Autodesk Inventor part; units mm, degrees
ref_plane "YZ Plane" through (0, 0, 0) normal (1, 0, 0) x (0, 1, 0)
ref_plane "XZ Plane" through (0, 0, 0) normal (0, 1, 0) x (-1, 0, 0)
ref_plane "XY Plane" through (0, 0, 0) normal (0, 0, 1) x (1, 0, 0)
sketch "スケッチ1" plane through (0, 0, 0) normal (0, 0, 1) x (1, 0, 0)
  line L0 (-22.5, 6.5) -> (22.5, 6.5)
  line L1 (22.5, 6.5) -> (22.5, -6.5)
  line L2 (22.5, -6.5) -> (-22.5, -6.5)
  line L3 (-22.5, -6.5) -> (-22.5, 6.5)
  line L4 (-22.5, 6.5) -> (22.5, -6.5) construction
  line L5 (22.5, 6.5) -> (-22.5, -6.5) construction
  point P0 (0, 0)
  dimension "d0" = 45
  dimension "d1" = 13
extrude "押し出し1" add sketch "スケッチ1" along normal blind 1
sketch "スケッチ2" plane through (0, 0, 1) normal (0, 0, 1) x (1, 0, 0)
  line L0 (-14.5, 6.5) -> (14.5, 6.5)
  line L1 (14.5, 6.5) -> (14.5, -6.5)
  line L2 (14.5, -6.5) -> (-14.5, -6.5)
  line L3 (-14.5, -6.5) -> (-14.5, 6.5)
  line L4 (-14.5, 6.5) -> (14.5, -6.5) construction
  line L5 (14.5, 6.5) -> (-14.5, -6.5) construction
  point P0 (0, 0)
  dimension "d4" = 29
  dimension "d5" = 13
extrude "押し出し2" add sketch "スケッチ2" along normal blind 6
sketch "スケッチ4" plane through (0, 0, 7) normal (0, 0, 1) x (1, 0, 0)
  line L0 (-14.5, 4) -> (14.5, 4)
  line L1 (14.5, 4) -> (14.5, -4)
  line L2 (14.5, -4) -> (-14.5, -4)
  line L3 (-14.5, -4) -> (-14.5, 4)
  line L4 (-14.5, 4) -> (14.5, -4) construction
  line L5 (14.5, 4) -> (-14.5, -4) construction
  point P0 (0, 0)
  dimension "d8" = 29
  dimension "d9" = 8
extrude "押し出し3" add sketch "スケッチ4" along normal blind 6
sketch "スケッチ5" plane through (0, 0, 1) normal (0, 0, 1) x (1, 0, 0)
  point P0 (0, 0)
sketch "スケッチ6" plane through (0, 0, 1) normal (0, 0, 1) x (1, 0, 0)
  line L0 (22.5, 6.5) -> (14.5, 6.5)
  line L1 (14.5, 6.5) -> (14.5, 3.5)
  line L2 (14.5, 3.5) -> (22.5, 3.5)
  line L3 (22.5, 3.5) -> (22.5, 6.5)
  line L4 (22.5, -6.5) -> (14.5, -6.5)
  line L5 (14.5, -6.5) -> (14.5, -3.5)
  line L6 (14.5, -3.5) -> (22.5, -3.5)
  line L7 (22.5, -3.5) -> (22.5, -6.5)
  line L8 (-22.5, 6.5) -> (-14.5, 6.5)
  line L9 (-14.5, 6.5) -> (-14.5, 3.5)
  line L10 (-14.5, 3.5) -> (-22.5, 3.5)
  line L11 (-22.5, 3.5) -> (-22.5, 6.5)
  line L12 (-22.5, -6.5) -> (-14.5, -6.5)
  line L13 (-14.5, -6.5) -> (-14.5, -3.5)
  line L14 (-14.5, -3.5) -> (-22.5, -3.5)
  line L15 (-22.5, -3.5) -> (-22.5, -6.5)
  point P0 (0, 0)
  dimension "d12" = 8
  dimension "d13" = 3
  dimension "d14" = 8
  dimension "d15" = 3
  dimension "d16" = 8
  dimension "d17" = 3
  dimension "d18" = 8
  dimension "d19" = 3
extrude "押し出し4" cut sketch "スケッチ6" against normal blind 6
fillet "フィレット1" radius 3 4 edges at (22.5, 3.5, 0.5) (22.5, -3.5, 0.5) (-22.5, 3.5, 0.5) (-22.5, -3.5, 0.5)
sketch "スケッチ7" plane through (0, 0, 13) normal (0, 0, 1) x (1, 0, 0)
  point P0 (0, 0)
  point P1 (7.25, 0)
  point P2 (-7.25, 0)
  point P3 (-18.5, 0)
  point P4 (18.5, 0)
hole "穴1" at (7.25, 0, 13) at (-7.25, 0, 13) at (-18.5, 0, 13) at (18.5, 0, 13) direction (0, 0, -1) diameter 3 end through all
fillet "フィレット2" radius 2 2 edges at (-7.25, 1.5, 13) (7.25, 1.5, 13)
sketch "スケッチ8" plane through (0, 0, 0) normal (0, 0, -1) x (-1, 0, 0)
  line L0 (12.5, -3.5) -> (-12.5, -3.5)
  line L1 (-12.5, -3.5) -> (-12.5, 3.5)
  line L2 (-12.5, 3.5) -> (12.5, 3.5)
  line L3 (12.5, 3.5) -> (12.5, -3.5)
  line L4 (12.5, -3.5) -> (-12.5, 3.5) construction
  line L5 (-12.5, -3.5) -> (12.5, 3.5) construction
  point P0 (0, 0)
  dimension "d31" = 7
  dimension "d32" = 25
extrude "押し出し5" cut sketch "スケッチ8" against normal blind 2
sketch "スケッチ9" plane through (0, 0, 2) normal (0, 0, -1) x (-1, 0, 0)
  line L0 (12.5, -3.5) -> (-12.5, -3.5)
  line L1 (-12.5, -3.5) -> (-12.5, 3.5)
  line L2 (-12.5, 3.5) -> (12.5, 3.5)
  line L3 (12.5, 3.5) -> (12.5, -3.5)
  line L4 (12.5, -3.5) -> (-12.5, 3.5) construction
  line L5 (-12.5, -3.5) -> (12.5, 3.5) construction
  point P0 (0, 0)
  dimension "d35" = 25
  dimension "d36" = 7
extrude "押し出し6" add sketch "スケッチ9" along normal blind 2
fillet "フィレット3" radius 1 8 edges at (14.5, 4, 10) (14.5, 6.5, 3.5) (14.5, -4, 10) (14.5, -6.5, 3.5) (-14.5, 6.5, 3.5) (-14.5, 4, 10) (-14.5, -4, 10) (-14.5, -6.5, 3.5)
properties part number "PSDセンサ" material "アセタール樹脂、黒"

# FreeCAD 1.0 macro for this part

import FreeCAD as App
import Part
import Sketcher
from FreeCAD import Vector
Q = App.Units.Quantity


def edges_at(feature, points):
    """Names of the edges that pass closest to the given points."""
    edges = feature.Shape.Edges
    near = lambda p: min(range(len(edges)), key=lambda i: edges[i].distToShape(Part.Vertex(*p))[0])
    return sorted({f"Edge{near(p) + 1}" for p in points})


def add_polygon(sketch, points):
    """Adds a closed chain of lines whose ends are joined by coincident constraints."""
    first, n = sketch.GeometryCount, len(points)
    for a, b in zip(points, points[1:] + points[:1]):
        sketch.addGeometry(Part.LineSegment(App.Vector(*a, 0), App.Vector(*b, 0)), False)
    for i in range(n):
        sketch.addConstraint(Sketcher.Constraint("Coincident", first + i, 2, first + (i + 1) % n, 1))

doc = App.newDocument("Part")
params = doc.addObject("Spreadsheet::Sheet", "Params")
for row, (alias, value) in enumerate([
    ("sketch1_width", "45 mm"),
    ("sketch1_height", "13 mm"),
    ("pad1_length", "1 mm"),
    ("sketch2_width", "29 mm"),
    ("sketch2_height", "13 mm"),
    ("pad2_length", "6 mm"),
    ("sketch3_width", "29 mm"),
    ("sketch3_height", "8 mm"),
    ("pad3_length", "6 mm"),
    ("sketch4_width", "8 mm"),
    ("sketch4_height", "3 mm"),
    ("pocket1_length", "6 mm"),
    ("fillet_radius", "3 mm"),
    ("sketch5_diameter", "3 mm"),
    ("hole_diameter", "3 mm"),
    ("fillet2_radius", "2 mm"),
    ("sketch6_width", "25 mm"),
    ("sketch6_height", "7 mm"),
    ("pocket2_length", "2 mm"),
    ("sketch7_width", "25 mm"),
    ("sketch7_height", "7 mm"),
    ("pad4_length", "2 mm"),
    ("fillet3_radius", "1 mm"),
], start=1):
    params.set(f"A{row}", alias)
    params.set(f"B{row}", "=" + value)
    params.setAlias(f"B{row}", alias)

body = doc.addObject("PartDesign::Body", "Body")

# Sketch on XY plane
sketch1 = doc.addObject("Sketcher::SketchObject", "Sketch")
body.addObject(sketch1)
sketch1.AttachmentSupport = (doc.XY_Plane, [""])
sketch1.MapMode = "FlatFace"
add_polygon(sketch1, [(22, 6), (-22, 6), (-22, -6), (22, -6)])  # lines 0-3
sketch1.addConstraint([
    Sketcher.Constraint("Horizontal", 0),
    Sketcher.Constraint("Vertical", 1),
    Sketcher.Constraint("Horizontal", 2),
    Sketcher.Constraint("Vertical", 3),
    Sketcher.Constraint("Symmetric", 0, 2, 2, 2, -1, 1),
    Sketcher.Constraint("DistanceX", 0, 2, 0, 1, Q("45 mm")),
    Sketcher.Constraint("DistanceY", 1, 2, 1, 1, Q("13 mm")),
])
sketch1.setExpression("Constraints[9]", "Params.sketch1_width")
sketch1.setExpression("Constraints[10]", "Params.sketch1_height")
pad1 = doc.addObject("PartDesign::Pad", "Pad")
body.addObject(pad1)
pad1.Profile = sketch1
pad1.setExpression("Length", "Params.pad1_length")

# Sketch on XY plane
sketch2 = doc.addObject("Sketcher::SketchObject", "Sketch001")
body.addObject(sketch2)
sketch2.AttachmentSupport = (doc.XY_Plane, [""])
sketch2.MapMode = "FlatFace"
sketch2.AttachmentOffset = App.Placement(Vector(0, 0, 1), App.Rotation())
add_polygon(sketch2, [(14, 6), (-14, 6), (-14, -6), (14, -6)])  # lines 0-3
sketch2.addConstraint([
    Sketcher.Constraint("Horizontal", 0),
    Sketcher.Constraint("Vertical", 1),
    Sketcher.Constraint("Horizontal", 2),
    Sketcher.Constraint("Vertical", 3),
    Sketcher.Constraint("Symmetric", 0, 2, 2, 2, -1, 1),
    Sketcher.Constraint("DistanceX", 0, 2, 0, 1, Q("29 mm")),
    Sketcher.Constraint("DistanceY", 1, 2, 1, 1, Q("13 mm")),
])
sketch2.setExpression("Constraints[9]", "Params.sketch2_width")
sketch2.setExpression("Constraints[10]", "Params.sketch2_height")
pad2 = doc.addObject("PartDesign::Pad", "Pad001")
body.addObject(pad2)
pad2.Profile = sketch2
pad2.setExpression("Length", "Params.pad2_length")

# Sketch on XY plane
sketch3 = doc.addObject("Sketcher::SketchObject", "Sketch002")
body.addObject(sketch3)
sketch3.AttachmentSupport = (doc.XY_Plane, [""])
sketch3.MapMode = "FlatFace"
sketch3.AttachmentOffset = App.Placement(Vector(0, 0, 7), App.Rotation())
add_polygon(sketch3, [(14, 4), (-14, 4), (-14, -4), (14, -4)])  # lines 0-3
sketch3.addConstraint([
    Sketcher.Constraint("Horizontal", 0),
    Sketcher.Constraint("Vertical", 1),
    Sketcher.Constraint("Horizontal", 2),
    Sketcher.Constraint("Vertical", 3),
    Sketcher.Constraint("Symmetric", 0, 2, 2, 2, -1, 1),
    Sketcher.Constraint("DistanceX", 0, 2, 0, 1, Q("29 mm")),
    Sketcher.Constraint("DistanceY", 1, 2, 1, 1, Q("8 mm")),
])
sketch3.setExpression("Constraints[9]", "Params.sketch3_width")
sketch3.setExpression("Constraints[10]", "Params.sketch3_height")
pad3 = doc.addObject("PartDesign::Pad", "Pad002")
body.addObject(pad3)
pad3.Profile = sketch3
pad3.setExpression("Length", "Params.pad3_length")

# Sketch on XY plane
sketch4 = doc.addObject("Sketcher::SketchObject", "Sketch003")
body.addObject(sketch4)
sketch4.AttachmentSupport = (doc.XY_Plane, [""])
sketch4.MapMode = "FlatFace"
sketch4.AttachmentOffset = App.Placement(Vector(0, 0, 1), App.Rotation())
add_polygon(sketch4, [(22.5, 3.5), (22.5, 6.5), (14.5, 6.5), (14.5, 3.5)])  # lines 0-3
add_polygon(sketch4, [(14.5, -6.5), (22.5, -6.5), (22.5, -3.5), (14.5, -3.5)])  # lines 4-7
add_polygon(sketch4, [(-14.5, 6.5), (-22.5, 6.5), (-22.5, 3.5), (-14.5, 3.5)])  # lines 8-11
add_polygon(sketch4, [(-22.5, -3.5), (-22.5, -6.5), (-14.5, -6.5), (-14.5, -3.5)])  # lines 12-15
sketch4.addConstraint([
    Sketcher.Constraint("Vertical", 0),
    Sketcher.Constraint("Horizontal", 1),
    Sketcher.Constraint("Vertical", 2),
    Sketcher.Constraint("Horizontal", 3),
    Sketcher.Constraint("Horizontal", 4),
    Sketcher.Constraint("Vertical", 5),
    Sketcher.Constraint("Horizontal", 6),
    Sketcher.Constraint("Vertical", 7),
    Sketcher.Constraint("Horizontal", 8),
    Sketcher.Constraint("Vertical", 9),
    Sketcher.Constraint("Horizontal", 10),
    Sketcher.Constraint("Vertical", 11),
    Sketcher.Constraint("Vertical", 12),
    Sketcher.Constraint("Horizontal", 13),
    Sketcher.Constraint("Vertical", 14),
    Sketcher.Constraint("Horizontal", 15),
    Sketcher.Constraint("Symmetric", 4, 2, 8, 2, -1, 1),
    Sketcher.Constraint("Symmetric", 6, 2, 10, 2, -1, 1),
    Sketcher.Constraint("Symmetric", 0, 2, 12, 2, -1, 1),
    Sketcher.Constraint("Symmetric", 2, 2, 14, 2, -1, 1),
    Sketcher.Constraint("Symmetric", 0, 2, 8, 2, -2),
    Sketcher.Constraint("Symmetric", 2, 2, 10, 2, -2),
    Sketcher.Constraint("DistanceX", 1, 2, 1, 1, Q("8 mm")),
    Sketcher.Constraint("DistanceY", 0, 1, 0, 2, Q("3 mm")),
    Sketcher.Constraint("DistanceY", 4, 2, 3, 2, Q("10 mm")),
    Sketcher.Constraint("DistanceX", 8, 2, 1, 2, Q("37 mm")),
])
sketch4.setExpression("Constraints[38]", "Params.sketch4_width")
sketch4.setExpression("Constraints[39]", "Params.sketch4_height")
pocket1 = doc.addObject("PartDesign::Pocket", "Pocket")
body.addObject(pocket1)
pocket1.Profile = sketch4
pocket1.setExpression("Length", "Params.pocket1_length")
doc.recompute()

fillet = doc.addObject("PartDesign::Fillet", "Fillet")
body.addObject(fillet)
fillet.Base = (pocket1, edges_at(pocket1, [
    (22.5, 3.5, 0.5),
    (22.5, -3.5, 0.5),
    (-22.5, 3.5, 0.5),
    (-22.5, -3.5, 0.5),
]))
fillet.setExpression("Radius", "Params.fillet_radius")

# Sketch on XY plane
sketch5 = doc.addObject("Sketcher::SketchObject", "Sketch004")
body.addObject(sketch5)
sketch5.AttachmentSupport = (doc.XY_Plane, [""])
sketch5.MapMode = "FlatFace"
sketch5.AttachmentOffset = App.Placement(Vector(0, 0, 13), App.Rotation())
sketch5.addGeometry([
    Part.Circle(Vector(7.2, 0, 0), Vector(0, 0, 1), 1.5),
    Part.Circle(Vector(-7.2, 0, 0), Vector(0, 0, 1), 1.5),
    Part.Circle(Vector(-18.5, 0, 0), Vector(0, 0, 1), 1.5),
    Part.Circle(Vector(18.5, 0, 0), Vector(0, 0, 1), 1.5),
], False)
sketch5.addConstraint([
    Sketcher.Constraint("Equal", 0, 1),
    Sketcher.Constraint("Equal", 1, 2),
    Sketcher.Constraint("Equal", 2, 3),
    Sketcher.Constraint("Symmetric", 0, 3, 1, 3, -1, 1),
    Sketcher.Constraint("Symmetric", 2, 3, 3, 3, -1, 1),
    Sketcher.Constraint("PointOnObject", 0, 3, -1),
    Sketcher.Constraint("PointOnObject", 2, 3, -1),
    Sketcher.Constraint("Diameter", 0, Q("3 mm")),
    Sketcher.Constraint("DistanceX", 2, 3, 3, 3, Q("37 mm")),
    Sketcher.Constraint("DistanceX", 1, 3, 0, 3, Q("14.5 mm")),
])
sketch5.setExpression("Constraints[7]", "Params.sketch5_diameter")
doc.recompute()
hole = doc.addObject("PartDesign::Hole", "Hole")
body.addObject(hole)
hole.Profile = sketch5
hole.ThreadType = "None"
hole.setExpression("Diameter", "Params.hole_diameter")
hole.DepthType = "ThroughAll"
doc.recompute()

fillet2 = doc.addObject("PartDesign::Fillet", "Fillet001")
body.addObject(fillet2)
fillet2.Base = (hole, edges_at(hole, [(-7.25, 1.5, 13), (7.25, 1.5, 13)]))
fillet2.setExpression("Radius", "Params.fillet2_radius")

# Sketch on XY plane
sketch6 = doc.addObject("Sketcher::SketchObject", "Sketch005")
body.addObject(sketch6)
sketch6.AttachmentSupport = (doc.XY_Plane, [""])
sketch6.MapMode = "FlatFace"
add_polygon(sketch6, [(12, -4), (-12, -4), (-12, 4), (12, 4)])  # lines 0-3
sketch6.addConstraint([
    Sketcher.Constraint("Horizontal", 0),
    Sketcher.Constraint("Vertical", 1),
    Sketcher.Constraint("Horizontal", 2),
    Sketcher.Constraint("Vertical", 3),
    Sketcher.Constraint("Symmetric", 0, 2, 2, 2, -1, 1),
    Sketcher.Constraint("DistanceX", 0, 2, 0, 1, Q("25 mm")),
    Sketcher.Constraint("DistanceY", 1, 1, 1, 2, Q("7 mm")),
])
sketch6.setExpression("Constraints[9]", "Params.sketch6_width")
sketch6.setExpression("Constraints[10]", "Params.sketch6_height")
pocket2 = doc.addObject("PartDesign::Pocket", "Pocket001")
body.addObject(pocket2)
pocket2.Profile = sketch6
pocket2.setExpression("Length", "Params.pocket2_length")
pocket2.Reversed = True

# Sketch on XY plane
sketch7 = doc.addObject("Sketcher::SketchObject", "Sketch006")
body.addObject(sketch7)
sketch7.AttachmentSupport = (doc.XY_Plane, [""])
sketch7.MapMode = "FlatFace"
sketch7.AttachmentOffset = App.Placement(Vector(0, 0, 2), App.Rotation())
add_polygon(sketch7, [(12, -4), (-12, -4), (-12, 4), (12, 4)])  # lines 0-3
sketch7.addConstraint([
    Sketcher.Constraint("Horizontal", 0),
    Sketcher.Constraint("Vertical", 1),
    Sketcher.Constraint("Horizontal", 2),
    Sketcher.Constraint("Vertical", 3),
    Sketcher.Constraint("Symmetric", 0, 2, 2, 2, -1, 1),
    Sketcher.Constraint("DistanceX", 0, 2, 0, 1, Q("25 mm")),
    Sketcher.Constraint("DistanceY", 1, 1, 1, 2, Q("7 mm")),
])
sketch7.setExpression("Constraints[9]", "Params.sketch7_width")
sketch7.setExpression("Constraints[10]", "Params.sketch7_height")
pad4 = doc.addObject("PartDesign::Pad", "Pad003")
body.addObject(pad4)
pad4.Profile = sketch7
pad4.setExpression("Length", "Params.pad4_length")
pad4.Reversed = True
doc.recompute()

fillet3 = doc.addObject("PartDesign::Fillet", "Fillet002")
body.addObject(fillet3)
fillet3.Base = (pad4, edges_at(pad4, [
    (14.5, 4, 10),
    (14.5, 6.5, 3.5),
    (14.5, -4, 10),
    (14.5, -6.5, 3.5),
    (-14.5, 6.5, 3.5),
    (-14.5, 4, 10),
    (-14.5, -4, 10),
    (-14.5, -6.5, 3.5),
]))
fillet3.setExpression("Radius", "Params.fillet3_radius")

doc.recompute()
